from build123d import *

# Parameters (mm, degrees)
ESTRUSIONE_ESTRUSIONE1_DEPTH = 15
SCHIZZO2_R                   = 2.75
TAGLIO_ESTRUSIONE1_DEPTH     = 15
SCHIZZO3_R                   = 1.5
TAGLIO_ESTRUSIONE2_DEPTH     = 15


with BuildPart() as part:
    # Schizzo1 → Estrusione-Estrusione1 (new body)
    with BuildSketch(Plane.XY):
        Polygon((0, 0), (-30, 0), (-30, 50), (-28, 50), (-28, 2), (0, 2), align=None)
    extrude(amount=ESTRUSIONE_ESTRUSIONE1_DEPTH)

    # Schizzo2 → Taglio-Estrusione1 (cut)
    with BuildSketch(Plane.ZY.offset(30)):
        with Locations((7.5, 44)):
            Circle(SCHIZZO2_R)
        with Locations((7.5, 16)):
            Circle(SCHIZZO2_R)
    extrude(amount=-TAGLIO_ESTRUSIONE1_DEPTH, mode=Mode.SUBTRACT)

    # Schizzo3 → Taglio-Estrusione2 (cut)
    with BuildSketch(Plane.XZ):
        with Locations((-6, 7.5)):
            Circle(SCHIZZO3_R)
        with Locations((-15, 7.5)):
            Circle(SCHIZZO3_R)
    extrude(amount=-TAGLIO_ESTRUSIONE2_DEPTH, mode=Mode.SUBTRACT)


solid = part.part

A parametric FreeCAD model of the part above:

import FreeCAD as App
import Part
import Sketcher
Q = App.Units.Quantity

doc = App.newDocument("Part")
body = doc.addObject("PartDesign::Body", "Body")

sketch1 = body.newObject("Sketcher::SketchObject", "Sketch")
sketch1.AttachmentSupport = (doc.getObject("XY_Plane"), [""])
sketch1.MapMode = "FlatFace"
sketch1.addGeometry([
    Part.LineSegment(App.Vector(-30, 0, 0), App.Vector(0, 0, 0)),
    Part.LineSegment(App.Vector(0, 0, 0), App.Vector(0, 2, 0)),
    Part.LineSegment(App.Vector(0, 2, 0), App.Vector(-28, 2, 0)),
    Part.LineSegment(App.Vector(-28, 2, 0), App.Vector(-28, 50, 0)),
    Part.LineSegment(App.Vector(-28, 50, 0), App.Vector(-30, 50, 0)),
    Part.LineSegment(App.Vector(-30, 50, 0), App.Vector(-30, 0, 0)),
], False)
sketch1.addConstraint([
    Sketcher.Constraint("Coincident", 0, 2, 1, 1),
    Sketcher.Constraint("Coincident", 1, 2, 2, 1),
    Sketcher.Constraint("Coincident", 2, 2, 3, 1),
    Sketcher.Constraint("Coincident", 3, 2, 4, 1),
    Sketcher.Constraint("Coincident", 4, 2, 5, 1),
    Sketcher.Constraint("Coincident", 5, 2, 0, 1),
    Sketcher.Constraint("Horizontal", 0),
    Sketcher.Constraint("Vertical", 1),
    Sketcher.Constraint("Horizontal", 2),
    Sketcher.Constraint("Vertical", 3),
    Sketcher.Constraint("Horizontal", 4),
    Sketcher.Constraint("Vertical", 5),
    Sketcher.Constraint("Coincident", 0, 2, -1, 1),
    Sketcher.Constraint("Equal", 4, 1),
    Sketcher.Constraint("DistanceX", 0, 1, 0, 2, Q("30 mm")),
    Sketcher.Constraint("DistanceX", 2, 2, 2, 1, Q("28 mm")),
    Sketcher.Constraint("DistanceY", 3, 1, 3, 2, Q("48 mm")),
])
pad1 = body.newObject("PartDesign::Pad", "Pad")
pad1.Profile = sketch1
pad1.Length = 15

sketch2 = body.newObject("Sketcher::SketchObject", "Sketch001")
sketch2.AttachmentSupport = (doc.getObject("YZ_Plane"), [""])
sketch2.MapMode = "FlatFace"
sketch2.AttachmentOffset = App.Placement(App.Vector(0, 0, -30), App.Rotation())
sketch2.addGeometry([
    Part.Circle(App.Vector(44, 7.5, 0), App.Vector(0, 0, 1), 2.8),
    Part.Circle(App.Vector(16, 7.5, 0), App.Vector(0, 0, 1), 2.8),
], False)
sketch2.addConstraint([
    Sketcher.Constraint("Equal", 0, 1),
    Sketcher.Constraint("Horizontal", 0, 3, 1, 3),
    Sketcher.Constraint("Diameter", 0, Q("5.5 mm")),
    Sketcher.Constraint("DistanceX", -1, 1, 0, 3, Q("44 mm")),
    Sketcher.Constraint("DistanceX", -1, 1, 1, 3, Q("16 mm")),
    Sketcher.Constraint("DistanceY", -1, 1, 0, 3, Q("7.5 mm")),
])
pocket1 = body.newObject("PartDesign::Pocket", "Pocket")
pocket1.Profile = sketch2
pocket1.Length = 15
pocket1.Reversed = True

sketch3 = body.newObject("Sketcher::SketchObject", "Sketch002")
sketch3.AttachmentSupport = (doc.getObject("XZ_Plane"), [""])
sketch3.MapMode = "FlatFace"
sketch3.addGeometry([
    Part.Circle(App.Vector(-6, 7.5, 0), App.Vector(0, 0, 1), 1.5),
    Part.Circle(App.Vector(-15, 7.5, 0), App.Vector(0, 0, 1), 1.5),
], False)
sketch3.addConstraint([
    Sketcher.Constraint("Equal", 0, 1),
    Sketcher.Constraint("Horizontal", 0, 3, 1, 3),
    Sketcher.Constraint("Diameter", 0, Q("3 mm")),
    Sketcher.Constraint("DistanceX", 0, 3, -1, 1, Q("6 mm")),
    Sketcher.Constraint("DistanceX", 1, 3, -1, 1, Q("15 mm")),
    Sketcher.Constraint("DistanceY", -1, 1, 0, 3, Q("7.5 mm")),
])
pocket2 = body.newObject("PartDesign::Pocket", "Pocket001")
pocket2.Profile = sketch3
pocket2.Length = 15

doc.recompute()
